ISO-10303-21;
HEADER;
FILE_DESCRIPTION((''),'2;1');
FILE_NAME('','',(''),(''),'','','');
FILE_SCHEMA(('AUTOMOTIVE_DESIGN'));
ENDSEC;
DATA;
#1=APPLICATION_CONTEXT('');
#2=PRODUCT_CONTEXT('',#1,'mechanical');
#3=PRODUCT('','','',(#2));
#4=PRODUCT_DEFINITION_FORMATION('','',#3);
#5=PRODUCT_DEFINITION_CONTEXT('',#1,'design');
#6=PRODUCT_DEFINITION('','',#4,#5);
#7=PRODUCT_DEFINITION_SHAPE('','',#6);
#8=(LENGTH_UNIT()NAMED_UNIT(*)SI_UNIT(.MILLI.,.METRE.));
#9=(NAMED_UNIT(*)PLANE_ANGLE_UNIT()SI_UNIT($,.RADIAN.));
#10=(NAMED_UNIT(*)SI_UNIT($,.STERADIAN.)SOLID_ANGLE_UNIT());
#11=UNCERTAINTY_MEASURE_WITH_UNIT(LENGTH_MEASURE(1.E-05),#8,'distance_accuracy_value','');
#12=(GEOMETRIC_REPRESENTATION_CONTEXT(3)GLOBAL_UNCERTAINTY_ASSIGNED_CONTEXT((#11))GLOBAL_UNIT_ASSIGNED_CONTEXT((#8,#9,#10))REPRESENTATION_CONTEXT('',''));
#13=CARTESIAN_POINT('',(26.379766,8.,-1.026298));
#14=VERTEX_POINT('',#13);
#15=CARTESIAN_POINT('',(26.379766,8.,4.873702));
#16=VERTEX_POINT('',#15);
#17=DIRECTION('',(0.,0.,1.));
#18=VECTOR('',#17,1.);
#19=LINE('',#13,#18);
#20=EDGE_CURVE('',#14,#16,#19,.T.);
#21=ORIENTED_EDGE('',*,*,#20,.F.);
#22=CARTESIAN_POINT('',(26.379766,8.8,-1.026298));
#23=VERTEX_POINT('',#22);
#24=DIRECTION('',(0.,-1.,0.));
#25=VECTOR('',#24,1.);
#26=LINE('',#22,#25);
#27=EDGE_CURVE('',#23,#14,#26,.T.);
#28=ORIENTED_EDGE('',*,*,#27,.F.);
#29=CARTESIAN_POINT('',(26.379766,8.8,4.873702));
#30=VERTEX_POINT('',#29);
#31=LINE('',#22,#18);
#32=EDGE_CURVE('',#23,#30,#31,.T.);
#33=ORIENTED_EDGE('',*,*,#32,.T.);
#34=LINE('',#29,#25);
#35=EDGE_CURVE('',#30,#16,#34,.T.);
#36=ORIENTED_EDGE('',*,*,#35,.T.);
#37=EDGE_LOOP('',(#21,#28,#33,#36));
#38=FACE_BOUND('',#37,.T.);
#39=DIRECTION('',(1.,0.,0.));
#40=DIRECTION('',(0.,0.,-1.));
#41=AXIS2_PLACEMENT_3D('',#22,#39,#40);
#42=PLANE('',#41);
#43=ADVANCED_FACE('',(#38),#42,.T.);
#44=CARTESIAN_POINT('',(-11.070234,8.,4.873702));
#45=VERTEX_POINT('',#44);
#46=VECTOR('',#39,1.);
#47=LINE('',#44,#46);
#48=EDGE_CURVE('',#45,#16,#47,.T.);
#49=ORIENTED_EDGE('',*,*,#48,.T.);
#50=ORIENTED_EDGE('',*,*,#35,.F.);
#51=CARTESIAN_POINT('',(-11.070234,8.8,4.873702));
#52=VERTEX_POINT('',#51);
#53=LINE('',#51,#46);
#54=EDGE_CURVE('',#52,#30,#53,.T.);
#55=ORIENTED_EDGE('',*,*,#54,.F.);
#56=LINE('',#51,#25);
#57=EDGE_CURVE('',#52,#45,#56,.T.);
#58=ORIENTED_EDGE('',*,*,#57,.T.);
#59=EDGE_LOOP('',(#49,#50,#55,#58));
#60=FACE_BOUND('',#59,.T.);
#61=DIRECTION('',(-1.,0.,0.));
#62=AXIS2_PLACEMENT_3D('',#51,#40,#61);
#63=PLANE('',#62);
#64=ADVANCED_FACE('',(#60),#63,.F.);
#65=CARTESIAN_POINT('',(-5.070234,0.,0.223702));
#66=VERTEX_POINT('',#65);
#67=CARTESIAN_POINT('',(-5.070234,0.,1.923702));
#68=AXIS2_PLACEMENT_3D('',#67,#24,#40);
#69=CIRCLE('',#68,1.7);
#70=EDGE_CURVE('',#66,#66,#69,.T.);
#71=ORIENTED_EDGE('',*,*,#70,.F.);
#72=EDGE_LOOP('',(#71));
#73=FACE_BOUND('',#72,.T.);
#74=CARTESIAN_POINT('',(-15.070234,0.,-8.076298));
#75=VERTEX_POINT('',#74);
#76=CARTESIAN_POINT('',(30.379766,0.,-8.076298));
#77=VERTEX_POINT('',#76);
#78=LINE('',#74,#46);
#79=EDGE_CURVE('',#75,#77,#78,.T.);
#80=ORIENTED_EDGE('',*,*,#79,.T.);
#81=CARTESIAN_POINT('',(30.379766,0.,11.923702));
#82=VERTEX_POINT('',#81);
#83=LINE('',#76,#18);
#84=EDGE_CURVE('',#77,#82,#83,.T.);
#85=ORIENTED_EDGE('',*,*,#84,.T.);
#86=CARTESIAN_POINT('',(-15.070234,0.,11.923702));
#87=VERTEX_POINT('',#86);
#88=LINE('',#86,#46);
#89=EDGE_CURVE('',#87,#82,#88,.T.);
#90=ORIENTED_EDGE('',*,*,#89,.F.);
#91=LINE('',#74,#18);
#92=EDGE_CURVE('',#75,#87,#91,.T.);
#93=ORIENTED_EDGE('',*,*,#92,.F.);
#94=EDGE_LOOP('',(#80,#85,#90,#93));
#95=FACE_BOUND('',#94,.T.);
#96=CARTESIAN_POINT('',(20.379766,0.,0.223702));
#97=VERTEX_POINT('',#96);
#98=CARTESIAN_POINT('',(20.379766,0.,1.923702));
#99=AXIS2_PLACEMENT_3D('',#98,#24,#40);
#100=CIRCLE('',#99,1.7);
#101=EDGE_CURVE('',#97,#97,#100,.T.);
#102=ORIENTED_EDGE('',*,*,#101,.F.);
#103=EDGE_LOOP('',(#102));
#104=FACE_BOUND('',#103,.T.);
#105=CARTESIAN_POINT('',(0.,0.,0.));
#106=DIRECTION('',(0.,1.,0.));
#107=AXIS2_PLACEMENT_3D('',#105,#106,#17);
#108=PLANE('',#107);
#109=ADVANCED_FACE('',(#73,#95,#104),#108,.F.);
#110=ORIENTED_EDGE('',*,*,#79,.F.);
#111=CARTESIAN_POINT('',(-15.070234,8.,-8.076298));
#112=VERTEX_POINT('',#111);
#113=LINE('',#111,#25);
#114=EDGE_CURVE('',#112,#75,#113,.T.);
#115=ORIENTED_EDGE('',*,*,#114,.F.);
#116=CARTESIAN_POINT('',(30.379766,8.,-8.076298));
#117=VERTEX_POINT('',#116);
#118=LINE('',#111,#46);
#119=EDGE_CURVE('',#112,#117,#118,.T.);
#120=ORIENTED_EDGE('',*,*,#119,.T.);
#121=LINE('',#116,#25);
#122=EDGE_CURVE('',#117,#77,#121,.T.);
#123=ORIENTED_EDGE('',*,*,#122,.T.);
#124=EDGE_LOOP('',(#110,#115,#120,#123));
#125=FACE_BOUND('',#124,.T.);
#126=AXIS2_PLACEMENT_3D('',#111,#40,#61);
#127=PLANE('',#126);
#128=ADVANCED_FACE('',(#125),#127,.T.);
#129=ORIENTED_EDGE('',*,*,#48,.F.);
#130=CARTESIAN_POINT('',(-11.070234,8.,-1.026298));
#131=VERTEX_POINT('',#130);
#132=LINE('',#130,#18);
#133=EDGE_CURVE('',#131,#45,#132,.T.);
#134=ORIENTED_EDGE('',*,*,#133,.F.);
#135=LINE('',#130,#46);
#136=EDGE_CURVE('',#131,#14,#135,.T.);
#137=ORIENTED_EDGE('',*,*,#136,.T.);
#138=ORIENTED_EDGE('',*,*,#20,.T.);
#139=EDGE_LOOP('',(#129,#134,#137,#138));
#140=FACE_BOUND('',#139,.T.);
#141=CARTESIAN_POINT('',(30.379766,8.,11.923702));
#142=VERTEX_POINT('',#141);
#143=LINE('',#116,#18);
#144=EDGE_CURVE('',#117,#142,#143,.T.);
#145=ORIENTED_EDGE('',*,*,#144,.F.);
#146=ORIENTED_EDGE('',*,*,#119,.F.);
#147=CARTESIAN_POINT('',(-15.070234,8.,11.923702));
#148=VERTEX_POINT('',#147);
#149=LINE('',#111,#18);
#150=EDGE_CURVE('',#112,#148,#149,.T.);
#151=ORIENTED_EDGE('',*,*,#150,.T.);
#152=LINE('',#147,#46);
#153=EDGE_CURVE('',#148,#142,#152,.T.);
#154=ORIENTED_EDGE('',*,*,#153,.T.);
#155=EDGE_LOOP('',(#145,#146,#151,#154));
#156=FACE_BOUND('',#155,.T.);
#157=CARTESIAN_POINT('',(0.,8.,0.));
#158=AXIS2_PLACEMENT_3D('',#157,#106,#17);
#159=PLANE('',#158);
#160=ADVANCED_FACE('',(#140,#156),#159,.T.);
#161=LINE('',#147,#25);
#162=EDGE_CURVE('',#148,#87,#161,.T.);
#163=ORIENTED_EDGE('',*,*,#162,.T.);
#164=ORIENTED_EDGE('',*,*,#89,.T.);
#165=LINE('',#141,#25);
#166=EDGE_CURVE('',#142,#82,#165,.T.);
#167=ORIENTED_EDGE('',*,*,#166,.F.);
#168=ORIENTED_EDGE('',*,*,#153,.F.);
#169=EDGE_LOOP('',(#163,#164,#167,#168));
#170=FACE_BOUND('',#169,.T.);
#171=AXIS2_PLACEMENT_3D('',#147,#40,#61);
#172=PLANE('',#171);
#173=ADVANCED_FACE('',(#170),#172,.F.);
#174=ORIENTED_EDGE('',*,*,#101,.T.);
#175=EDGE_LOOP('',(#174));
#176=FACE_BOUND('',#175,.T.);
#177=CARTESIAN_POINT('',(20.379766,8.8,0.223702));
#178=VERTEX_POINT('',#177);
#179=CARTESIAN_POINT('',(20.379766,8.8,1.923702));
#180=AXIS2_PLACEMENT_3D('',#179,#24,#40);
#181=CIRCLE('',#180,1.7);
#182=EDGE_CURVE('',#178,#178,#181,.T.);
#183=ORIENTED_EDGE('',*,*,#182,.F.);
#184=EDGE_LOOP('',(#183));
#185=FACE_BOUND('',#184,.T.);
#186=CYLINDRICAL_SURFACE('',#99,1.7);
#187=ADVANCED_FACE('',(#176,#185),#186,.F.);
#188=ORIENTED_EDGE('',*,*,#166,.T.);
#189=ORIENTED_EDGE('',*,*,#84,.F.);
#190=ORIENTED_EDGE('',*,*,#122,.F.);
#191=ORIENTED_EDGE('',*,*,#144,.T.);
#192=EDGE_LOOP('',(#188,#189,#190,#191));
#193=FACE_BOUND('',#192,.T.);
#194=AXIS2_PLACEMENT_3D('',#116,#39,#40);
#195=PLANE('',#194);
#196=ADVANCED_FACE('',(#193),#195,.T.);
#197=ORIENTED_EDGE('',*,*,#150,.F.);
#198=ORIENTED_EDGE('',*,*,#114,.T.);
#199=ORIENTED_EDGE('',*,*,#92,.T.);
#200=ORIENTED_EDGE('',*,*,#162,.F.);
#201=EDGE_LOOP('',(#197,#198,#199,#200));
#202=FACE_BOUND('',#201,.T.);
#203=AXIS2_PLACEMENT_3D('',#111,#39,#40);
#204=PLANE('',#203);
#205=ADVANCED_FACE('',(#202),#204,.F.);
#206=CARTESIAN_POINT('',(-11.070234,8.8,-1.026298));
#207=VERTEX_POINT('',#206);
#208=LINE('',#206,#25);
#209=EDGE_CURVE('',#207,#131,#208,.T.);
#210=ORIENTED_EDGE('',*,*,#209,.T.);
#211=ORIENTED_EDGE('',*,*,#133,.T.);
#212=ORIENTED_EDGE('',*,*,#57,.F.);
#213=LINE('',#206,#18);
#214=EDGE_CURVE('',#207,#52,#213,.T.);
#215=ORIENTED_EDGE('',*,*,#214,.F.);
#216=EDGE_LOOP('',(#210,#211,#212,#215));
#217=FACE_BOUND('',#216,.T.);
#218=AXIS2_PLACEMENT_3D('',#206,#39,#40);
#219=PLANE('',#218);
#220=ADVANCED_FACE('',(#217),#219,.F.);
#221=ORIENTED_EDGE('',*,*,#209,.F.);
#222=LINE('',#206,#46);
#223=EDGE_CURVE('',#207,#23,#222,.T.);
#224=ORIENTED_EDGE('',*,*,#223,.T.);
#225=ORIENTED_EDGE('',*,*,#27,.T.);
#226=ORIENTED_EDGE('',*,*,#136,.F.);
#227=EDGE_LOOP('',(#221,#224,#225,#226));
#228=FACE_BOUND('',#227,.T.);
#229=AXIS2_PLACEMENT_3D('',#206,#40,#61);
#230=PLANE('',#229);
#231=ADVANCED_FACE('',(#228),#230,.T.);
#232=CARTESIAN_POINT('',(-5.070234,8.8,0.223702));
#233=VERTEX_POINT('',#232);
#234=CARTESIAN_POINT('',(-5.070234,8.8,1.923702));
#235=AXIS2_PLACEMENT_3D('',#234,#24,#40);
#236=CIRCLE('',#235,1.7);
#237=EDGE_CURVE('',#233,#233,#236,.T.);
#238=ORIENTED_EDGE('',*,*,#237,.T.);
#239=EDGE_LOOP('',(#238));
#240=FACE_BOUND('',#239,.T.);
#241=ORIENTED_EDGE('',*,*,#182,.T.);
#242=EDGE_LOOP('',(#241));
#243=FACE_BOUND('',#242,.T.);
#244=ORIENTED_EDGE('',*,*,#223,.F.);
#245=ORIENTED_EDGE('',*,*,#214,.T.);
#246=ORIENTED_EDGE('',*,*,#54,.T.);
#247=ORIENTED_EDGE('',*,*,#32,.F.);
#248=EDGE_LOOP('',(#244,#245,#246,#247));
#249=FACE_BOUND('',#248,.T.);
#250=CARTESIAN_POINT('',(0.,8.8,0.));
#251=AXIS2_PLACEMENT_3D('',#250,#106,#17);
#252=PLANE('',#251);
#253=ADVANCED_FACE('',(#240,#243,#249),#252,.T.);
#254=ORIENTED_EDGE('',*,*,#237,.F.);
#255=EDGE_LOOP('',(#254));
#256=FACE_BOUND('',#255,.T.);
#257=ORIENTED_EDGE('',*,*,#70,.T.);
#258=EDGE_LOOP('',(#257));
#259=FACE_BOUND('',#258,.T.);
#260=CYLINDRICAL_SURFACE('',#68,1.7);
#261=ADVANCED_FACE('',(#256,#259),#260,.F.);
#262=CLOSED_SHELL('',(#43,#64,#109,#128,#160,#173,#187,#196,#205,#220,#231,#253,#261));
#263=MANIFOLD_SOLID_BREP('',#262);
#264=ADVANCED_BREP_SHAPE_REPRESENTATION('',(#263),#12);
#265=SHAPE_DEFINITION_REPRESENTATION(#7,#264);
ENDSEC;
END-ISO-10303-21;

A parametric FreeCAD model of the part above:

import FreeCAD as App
import Part
import Sketcher


def add_polygon(sketch, points):
    """Adds a closed chain of lines whose ends are joined by coincident constraints."""
    first, n = sketch.GeometryCount, len(points)
    for a, b in zip(points, points[1:] + points[:1]):
        sketch.addGeometry(Part.LineSegment(App.Vector(*a, 0), App.Vector(*b, 0)), False)
    for i in range(n):
        sketch.addConstraint(Sketcher.Constraint("Coincident", first + i, 2, first + (i + 1) % n, 1))

doc = App.newDocument("Part")
params = doc.addObject("Spreadsheet::Sheet", "Params")
for row, (alias, value) in enumerate([
    ("sketch1_height", "20 mm"),
    ("sketch1_width", "45.45 mm"),
    ("pad1_length", "8 mm"),
    ("sketch2_height", "5.9 mm"),
    ("sketch2_width", "37.45 mm"),
    ("pad2_length", "0.8 mm"),
    ("sketch3_diameter", "3.4 mm"),
    ("hole_diameter", "3.4 mm"),
], start=1):
    params.set(f"A{row}", alias)
    params.set(f"B{row}", "=" + value)
    params.setAlias(f"B{row}", alias)

body = doc.addObject("PartDesign::Body", "Body")

# Sketch on XZ plane
sketch1 = body.newObject("Sketcher::SketchObject", "Sketch")
sketch1.AttachmentSupport = (doc.getObject("XZ_Plane"), [""])
sketch1.MapMode = "FlatFace"
add_polygon(sketch1, [(-15, -8), (-15, 12), (30, 12), (30, -8)])  # lines 0-3
sketch1.addConstraint(Sketcher.Constraint("Vertical", 0))
sketch1.addConstraint(Sketcher.Constraint("Horizontal", 1))
sketch1.addConstraint(Sketcher.Constraint("Vertical", 2))
sketch1.addConstraint(Sketcher.Constraint("Horizontal", 3))
sketch1.addConstraint(Sketcher.Constraint("DistanceY", 0, 1, 0, 2, 20.0))
sketch1.addConstraint(Sketcher.Constraint("DistanceX", 1, 1, 1, 2, 45.45))
sketch1.addConstraint(Sketcher.Constraint("DistanceY", -1, 1, 0, 2, 11.923702))
sketch1.addConstraint(Sketcher.Constraint("DistanceX", 0, 2, -1, 1, 15.070234))
sketch1.setExpression("Constraints[8]", "Params.sketch1_height")
sketch1.setExpression("Constraints[9]", "Params.sketch1_width")
pad1 = body.newObject("PartDesign::Pad", "Pad")
pad1.Profile = sketch1
pad1.setExpression("Length", "Params.pad1_length")
pad1.Reversed = True

# Sketch on XZ plane
sketch2 = body.newObject("Sketcher::SketchObject", "Sketch001")
sketch2.AttachmentSupport = (doc.getObject("XZ_Plane"), [""])
sketch2.MapMode = "FlatFace"
sketch2.AttachmentOffset = App.Placement(App.Vector(0, 0, -8), App.Rotation())
add_polygon(sketch2, [(-11, -1), (-11, 5), (26, 5), (26, -1)])  # lines 0-3
sketch2.addConstraint(Sketcher.Constraint("Vertical", 0))
sketch2.addConstraint(Sketcher.Constraint("Horizontal", 1))
sketch2.addConstraint(Sketcher.Constraint("Vertical", 2))
sketch2.addConstraint(Sketcher.Constraint("Horizontal", 3))
sketch2.addConstraint(Sketcher.Constraint("DistanceY", 0, 1, 0, 2, 5.9))
sketch2.addConstraint(Sketcher.Constraint("DistanceX", 1, 1, 1, 2, 37.45))
sketch2.addConstraint(Sketcher.Constraint("DistanceY", -1, 1, 0, 2, 4.873702))
sketch2.addConstraint(Sketcher.Constraint("DistanceX", 0, 2, -1, 1, 11.070234))
sketch2.setExpression("Constraints[8]", "Params.sketch2_height")
sketch2.setExpression("Constraints[9]", "Params.sketch2_width")
pad2 = body.newObject("PartDesign::Pad", "Pad001")
pad2.Profile = sketch2
pad2.setExpression("Length", "Params.pad2_length")
pad2.Reversed = True

# Sketch on XZ plane
sketch3 = body.newObject("Sketcher::SketchObject", "Sketch002")
sketch3.AttachmentSupport = (doc.getObject("XZ_Plane"), [""])
sketch3.MapMode = "FlatFace"
sketch3.addGeometry(Part.Circle(App.Vector(20.4, 1.9, 0), App.Vector(0, 0, 1), 1.7), False)
sketch3.addGeometry(Part.Circle(App.Vector(-5.1, 1.9, 0), App.Vector(0, 0, 1), 1.7), False)
sketch3.addConstraint(Sketcher.Constraint("Equal", 0, 1))
sketch3.addConstraint(Sketcher.Constraint("Horizontal", 0, 3, 1, 3))
sketch3.addConstraint(Sketcher.Constraint("Diameter", 0, 3.4))
sketch3.addConstraint(Sketcher.Constraint("DistanceX", 1, 3, 0, 3, 25.45))
sketch3.addConstraint(Sketcher.Constraint("DistanceY", -1, 1, 0, 3, 1.923702))
sketch3.addConstraint(Sketcher.Constraint("DistanceX", -1, 1, 0, 3, 20.379766))
sketch3.setExpression("Constraints[2]", "Params.sketch3_diameter")
doc.recompute()
hole = body.newObject("PartDesign::Hole", "Hole")
hole.Profile = sketch3
hole.ThreadType = "None"
hole.setExpression("Diameter", "Params.hole_diameter")
hole.DepthType = "ThroughAll"

doc.recompute()
